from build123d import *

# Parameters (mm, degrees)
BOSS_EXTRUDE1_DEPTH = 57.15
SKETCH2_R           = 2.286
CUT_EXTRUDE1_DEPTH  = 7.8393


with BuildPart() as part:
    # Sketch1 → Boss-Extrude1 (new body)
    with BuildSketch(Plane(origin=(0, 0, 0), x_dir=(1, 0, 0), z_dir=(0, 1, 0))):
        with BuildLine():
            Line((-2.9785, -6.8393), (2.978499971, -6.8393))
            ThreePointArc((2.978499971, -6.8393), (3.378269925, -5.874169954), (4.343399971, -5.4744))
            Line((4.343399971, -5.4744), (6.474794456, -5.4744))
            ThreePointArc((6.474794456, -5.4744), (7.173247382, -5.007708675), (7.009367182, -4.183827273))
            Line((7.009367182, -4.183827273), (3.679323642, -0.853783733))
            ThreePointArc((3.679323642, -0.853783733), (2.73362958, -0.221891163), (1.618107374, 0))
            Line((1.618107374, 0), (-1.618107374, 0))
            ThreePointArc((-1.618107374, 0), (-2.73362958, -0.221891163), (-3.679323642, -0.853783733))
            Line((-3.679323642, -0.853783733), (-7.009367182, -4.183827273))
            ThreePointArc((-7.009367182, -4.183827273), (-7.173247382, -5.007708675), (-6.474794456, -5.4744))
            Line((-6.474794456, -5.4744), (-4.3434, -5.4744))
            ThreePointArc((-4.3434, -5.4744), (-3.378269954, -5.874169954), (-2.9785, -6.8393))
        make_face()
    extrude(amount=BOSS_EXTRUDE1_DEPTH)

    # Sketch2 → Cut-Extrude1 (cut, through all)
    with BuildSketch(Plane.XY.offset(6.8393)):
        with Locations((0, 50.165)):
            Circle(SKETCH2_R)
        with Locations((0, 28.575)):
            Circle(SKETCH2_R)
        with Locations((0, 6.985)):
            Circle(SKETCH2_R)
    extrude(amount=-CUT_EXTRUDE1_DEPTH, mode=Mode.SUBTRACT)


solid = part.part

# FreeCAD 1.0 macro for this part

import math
import FreeCAD as App
import Part
import Sketcher
Q = App.Units.Quantity

doc = App.newDocument("Part")
body = doc.addObject("PartDesign::Body", "Body")

sketch1 = doc.addObject("Sketcher::SketchObject", "Sketch")
body.addObject(sketch1)
sketch1.AttachmentSupport = (doc.XZ_Plane, [""])
sketch1.MapMode = "FlatFace"
sketch1.addGeometry(Part.LineSegment(App.Vector(-2.9785, 6.8393, 0), App.Vector(2.9785, 6.8393, 0)), False)
sketch1.addGeometry(Part.ArcOfCircle(Part.Circle(App.Vector(4.3434, 6.8393, 0), App.Vector(0, 0, 1), 1.3649), math.radians(180), math.radians(270)), False)
sketch1.addGeometry(Part.LineSegment(App.Vector(4.3434, 5.4744, 0), App.Vector(6.474794, 5.4744, 0)), False)
sketch1.addGeometry(Part.ArcOfCircle(Part.Circle(App.Vector(6.474794, 4.7184, 0), App.Vector(0, 0, 1), 0.756), math.radians(-45), math.radians(90)), False)
sketch1.addGeometry(Part.LineSegment(App.Vector(7.009367, 4.183827, 0), App.Vector(3.679324, 0.853784, 0)), False)
sketch1.addGeometry(Part.ArcOfCircle(Part.Circle(App.Vector(1.618107, 2.915, 0), App.Vector(0, 0, 1), 2.915), math.radians(-90), math.radians(-45)), False)
sketch1.addGeometry(Part.LineSegment(App.Vector(1.618107, 0, 0), App.Vector(-1.618107, 0, 0)), False)
sketch1.addGeometry(Part.ArcOfCircle(Part.Circle(App.Vector(-1.618107, 2.915, 0), App.Vector(0, 0, 1), 2.915), math.radians(-135), math.radians(-90)), False)
sketch1.addGeometry(Part.LineSegment(App.Vector(-3.679324, 0.853784, 0), App.Vector(-7.009367, 4.183827, 0)), False)
sketch1.addGeometry(Part.ArcOfCircle(Part.Circle(App.Vector(-6.474794, 4.7184, 0), App.Vector(0, 0, 1), 0.756), math.radians(90), math.radians(225)), False)
sketch1.addGeometry(Part.LineSegment(App.Vector(-6.474794, 5.4744, 0), App.Vector(-4.3434, 5.4744, 0)), False)
sketch1.addGeometry(Part.ArcOfCircle(Part.Circle(App.Vector(-4.3434, 6.8393, 0), App.Vector(0, 0, 1), 1.3649), math.radians(-90), math.radians(0)), False)
sketch1.addConstraint(Sketcher.Constraint("Coincident", 0, 2, 1, 1))
sketch1.addConstraint(Sketcher.Constraint("Tangent", 1, 2, 2, 1))
sketch1.addConstraint(Sketcher.Constraint("Tangent", 2, 2, 3, 2))
sketch1.addConstraint(Sketcher.Constraint("Tangent", 3, 1, 4, 1))
sketch1.addConstraint(Sketcher.Constraint("Tangent", 4, 2, 5, 2))
sketch1.addConstraint(Sketcher.Constraint("Tangent", 5, 1, 6, 1))
sketch1.addConstraint(Sketcher.Constraint("Tangent", 6, 2, 7, 2))
sketch1.addConstraint(Sketcher.Constraint("Tangent", 7, 1, 8, 1))
sketch1.addConstraint(Sketcher.Constraint("Tangent", 8, 2, 9, 2))
sketch1.addConstraint(Sketcher.Constraint("Tangent", 9, 1, 10, 1))
sketch1.addConstraint(Sketcher.Constraint("Tangent", 10, 2, 11, 1))
sketch1.addConstraint(Sketcher.Constraint("Coincident", 11, 2, 0, 1))
sketch1.addConstraint(Sketcher.Constraint("Horizontal", 0))
sketch1.addConstraint(Sketcher.Constraint("Horizontal", 2))
sketch1.addConstraint(Sketcher.Constraint("Horizontal", 6))
sketch1.addConstraint(Sketcher.Constraint("Horizontal", 10))
sketch1.addConstraint(Sketcher.Constraint("Equal", 5, 7))
sketch1.addConstraint(Sketcher.Constraint("Equal", 3, 9))
sketch1.addConstraint(Sketcher.Constraint("Equal", 1, 11))
sketch1.addConstraint(Sketcher.Constraint("Symmetric", 5, 1, 6, 2, -1, 1))
sketch1.addConstraint(Sketcher.Constraint("Symmetric", 3, 3, 9, 3, -2))
sketch1.addConstraint(Sketcher.Constraint("Perpendicular", 4, 8))
sketch1.addConstraint(Sketcher.Constraint("Horizontal", 11, 3, 0, 2))
sketch1.addConstraint(Sketcher.Constraint("Equal", 2, 10))
sketch1.addConstraint(Sketcher.Constraint("Radius", 1, Q("1.3649 mm")))
sketch1.addConstraint(Sketcher.Constraint("Radius", 3, Q("0.756 mm")))
sketch1.addConstraint(Sketcher.Constraint("Radius", 5, Q("2.915 mm")))
sketch1.addConstraint(Sketcher.Constraint("DistanceX", -1, 1, 1, 3, Q("0.171 in")))
sketch1.addConstraint(Sketcher.Constraint("DistanceY", 5, 3, 3, 3, Q("0.071 in")))
sketch1.addConstraint(Sketcher.Constraint("DistanceX", 7, 3, 3, 3, Q("8.092902 mm")))
pad1 = doc.addObject("PartDesign::Pad", "Pad")
body.addObject(pad1)
pad1.Profile = sketch1
pad1.Length = Q("2.25 in")
pad1.Reversed = True

sketch2 = doc.addObject("Sketcher::SketchObject", "Sketch001")
body.addObject(sketch2)
sketch2.AttachmentSupport = (doc.XY_Plane, [""])
sketch2.MapMode = "FlatFace"
sketch2.AttachmentOffset = App.Placement(App.Vector(0, 0, 6.8393), App.Rotation())
sketch2.addGeometry(Part.Circle(App.Vector(0, 50.165, 0), App.Vector(0, 0, 1), 2.286), False)
sketch2.addGeometry(Part.Circle(App.Vector(0, 28.575, 0), App.Vector(0, 0, 1), 2.286), False)
sketch2.addGeometry(Part.Circle(App.Vector(0, 6.985, 0), App.Vector(0, 0, 1), 2.286), False)
sketch2.addConstraint(Sketcher.Constraint("Equal", 0, 1))
sketch2.addConstraint(Sketcher.Constraint("Equal", 1, 2))
sketch2.addConstraint(Sketcher.Constraint("PointOnObject", 0, 3, -2))
sketch2.addConstraint(Sketcher.Constraint("PointOnObject", 1, 3, -2))
sketch2.addConstraint(Sketcher.Constraint("PointOnObject", 2, 3, -2))
sketch2.addConstraint(Sketcher.Constraint("Diameter", 0, Q("0.18 in")))
sketch2.addConstraint(Sketcher.Constraint("DistanceY", 2, 3, 0, 3, Q("1.7 in")))
sketch2.addConstraint(Sketcher.Constraint("DistanceY", 1, 3, 0, 3, Q("0.85 in")))
sketch2.addConstraint(Sketcher.Constraint("DistanceY", -1, 1, 0, 3, Q("1.975 in")))
pocket1 = doc.addObject("PartDesign::Pocket", "Pocket")
body.addObject(pocket1)
pocket1.Profile = sketch2
pocket1.Type = "ThroughAll"

doc.recompute()
